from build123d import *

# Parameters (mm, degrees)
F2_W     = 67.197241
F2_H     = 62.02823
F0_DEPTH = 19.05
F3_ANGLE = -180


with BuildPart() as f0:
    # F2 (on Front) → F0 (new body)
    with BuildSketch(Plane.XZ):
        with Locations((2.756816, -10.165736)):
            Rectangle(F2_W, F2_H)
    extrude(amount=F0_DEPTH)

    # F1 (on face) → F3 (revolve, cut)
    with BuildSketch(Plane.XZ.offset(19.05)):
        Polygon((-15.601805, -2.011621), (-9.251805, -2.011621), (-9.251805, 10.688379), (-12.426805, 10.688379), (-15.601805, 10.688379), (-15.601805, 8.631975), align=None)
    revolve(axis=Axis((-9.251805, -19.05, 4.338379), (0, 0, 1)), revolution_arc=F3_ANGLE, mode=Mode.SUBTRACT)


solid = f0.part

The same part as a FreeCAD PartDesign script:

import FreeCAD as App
import Part
import Sketcher
Q = App.Units.Quantity

doc = App.newDocument("Part")
params = doc.addObject("Spreadsheet::Sheet", "Params")
for row, (alias, value) in enumerate([
    ("pad1_length", "0.75 in"),
    ("sketch2_height", "0.5 in"),
    ("sketch2_width", "0.25 in"),
    ("groove_angle", "180 deg"),
], start=1):
    params.set(f"A{row}", alias)
    params.set(f"B{row}", "=" + value)
    params.setAlias(f"B{row}", alias)

body = doc.addObject("PartDesign::Body", "Body")

# Sketch on XZ plane
sketch1 = body.newObject("Sketcher::SketchObject", "Sketch")
sketch1.AttachmentSupport = (doc.getObject("XZ_Plane"), [""])
sketch1.MapMode = "FlatFace"
sketch1.addGeometry(Part.LineSegment(App.Vector(-30.841804, 20.848379, 0), App.Vector(-30.841804, -41.179851, 0)), False)
sketch1.addGeometry(Part.LineSegment(App.Vector(-30.841804, -41.179851, 0), App.Vector(36.355437, -41.179851, 0)), False)
sketch1.addGeometry(Part.LineSegment(App.Vector(36.355437, -41.179851, 0), App.Vector(36.355437, 20.848379, 0)), False)
sketch1.addGeometry(Part.LineSegment(App.Vector(36.355437, 20.848379, 0), App.Vector(-30.841804, 20.848379, 0)), False)
sketch1.addConstraint(Sketcher.Constraint("Coincident", 0, 2, 1, 1))
sketch1.addConstraint(Sketcher.Constraint("Coincident", 1, 2, 2, 1))
sketch1.addConstraint(Sketcher.Constraint("Coincident", 2, 2, 3, 1))
sketch1.addConstraint(Sketcher.Constraint("Coincident", 3, 2, 0, 1))
sketch1.addConstraint(Sketcher.Constraint("Vertical", 0))
sketch1.addConstraint(Sketcher.Constraint("Horizontal", 1))
sketch1.addConstraint(Sketcher.Constraint("Vertical", 2))
sketch1.addConstraint(Sketcher.Constraint("Horizontal", 3))
sketch1.addConstraint(Sketcher.Constraint("DistanceX", 1, 1, 1, 2, 67.197241))
sketch1.addConstraint(Sketcher.Constraint("DistanceY", 0, 2, 0, 1, 62.02823))
sketch1.addConstraint(Sketcher.Constraint("DistanceY", 0, 2, -1, 1, 41.179851))
sketch1.addConstraint(Sketcher.Constraint("DistanceX", 0, 2, -1, 1, 30.841804))
pad1 = body.newObject("PartDesign::Pad", "Pad")
pad1.Profile = sketch1
pad1.setExpression("Length", "Params.pad1_length")

# Sketch on XZ plane
sketch2 = body.newObject("Sketcher::SketchObject", "Sketch001")
sketch2.AttachmentSupport = (doc.getObject("XZ_Plane"), [""])
sketch2.MapMode = "FlatFace"
sketch2.AttachmentOffset = App.Placement(App.Vector(0, 0, 0.75 * 25.4), App.Rotation())
sketch2.addGeometry(Part.LineSegment(App.Vector(-15.601805, -2.011621, 0), App.Vector(-9.251805, -2.011621, 0)), False)
sketch2.addGeometry(Part.LineSegment(App.Vector(-9.251805, -2.011621, 0), App.Vector(-9.251805, 10.688379, 0)), False)
sketch2.addGeometry(Part.LineSegment(App.Vector(-9.251805, 10.688379, 0), App.Vector(-15.601805, 10.688379, 0)), False)
sketch2.addGeometry(Part.LineSegment(App.Vector(-15.601805, 10.688379, 0), App.Vector(-15.601805, -2.011621, 0)), False)
sketch2.addGeometry(Part.LineSegment(App.Vector(-9.251805, -2.011621, 0), App.Vector(-9.251805, 10.688379, 0)), True)  # axis
sketch2.addConstraint(Sketcher.Constraint("Coincident", 0, 2, 1, 1))
sketch2.addConstraint(Sketcher.Constraint("Coincident", 1, 2, 2, 1))
sketch2.addConstraint(Sketcher.Constraint("Coincident", 2, 2, 3, 1))
sketch2.addConstraint(Sketcher.Constraint("Coincident", 3, 2, 0, 1))
sketch2.addConstraint(Sketcher.Constraint("Horizontal", 0))
sketch2.addConstraint(Sketcher.Constraint("Vertical", 1))
sketch2.addConstraint(Sketcher.Constraint("Horizontal", 2))
sketch2.addConstraint(Sketcher.Constraint("Vertical", 3))
sketch2.addConstraint(Sketcher.Constraint("Vertical", 4))
sketch2.addConstraint(Sketcher.Constraint("Coincident", 4, 1, 0, 2))
sketch2.addConstraint(Sketcher.Constraint("Horizontal", 2, 2, 4, 2))
sketch2.addConstraint(Sketcher.Constraint("DistanceY", 1, 1, 1, 2, Q("0.5 in")))
sketch2.addConstraint(Sketcher.Constraint("DistanceX", 0, 1, 0, 2, Q("0.25 in")))
sketch2.addConstraint(Sketcher.Constraint("DistanceY", 0, 2, -1, 1, 2.011621))
sketch2.addConstraint(Sketcher.Constraint("DistanceX", 0, 2, -1, 1, 9.251805))
sketch2.setExpression("Constraints[11]", "Params.sketch2_height")
sketch2.setExpression("Constraints[12]", "Params.sketch2_width")
groove = body.newObject("PartDesign::Groove", "Groove")
groove.Profile = sketch2
groove.ReferenceAxis = (sketch2, ["Axis0"])
groove.setExpression("Angle", "Params.groove_angle")
groove.Reversed = True

doc.recompute()
